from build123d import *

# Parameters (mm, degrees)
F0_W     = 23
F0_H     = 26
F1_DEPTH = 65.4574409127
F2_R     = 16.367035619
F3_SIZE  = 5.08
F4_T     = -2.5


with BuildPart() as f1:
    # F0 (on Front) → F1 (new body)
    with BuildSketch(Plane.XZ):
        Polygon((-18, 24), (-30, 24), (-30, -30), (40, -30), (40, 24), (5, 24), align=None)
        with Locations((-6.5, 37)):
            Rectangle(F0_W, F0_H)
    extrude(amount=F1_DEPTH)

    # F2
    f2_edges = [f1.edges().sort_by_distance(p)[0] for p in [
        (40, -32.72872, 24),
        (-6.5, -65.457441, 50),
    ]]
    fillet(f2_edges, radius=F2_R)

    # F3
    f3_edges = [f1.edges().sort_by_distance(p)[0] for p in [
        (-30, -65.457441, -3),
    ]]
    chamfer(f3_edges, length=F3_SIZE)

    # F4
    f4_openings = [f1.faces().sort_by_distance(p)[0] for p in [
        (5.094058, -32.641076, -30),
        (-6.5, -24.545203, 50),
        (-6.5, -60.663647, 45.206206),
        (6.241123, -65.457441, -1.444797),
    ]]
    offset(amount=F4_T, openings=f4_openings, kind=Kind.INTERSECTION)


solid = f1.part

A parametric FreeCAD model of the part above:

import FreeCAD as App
import Part
import Sketcher

V = App.Vector
Q = App.Units.Quantity


def edges_at(feature, points):
    """Names of the edges that pass closest to the given points."""
    edges = feature.Shape.Edges
    near = lambda p: min(range(len(edges)), key=lambda i: edges[i].distToShape(Part.Vertex(*p))[0])
    return sorted({f"Edge{near(p) + 1}" for p in points})


def faces_at(feature, points):
    """Names of the faces that lie closest to the given points."""
    faces = feature.Shape.Faces
    near = lambda p: min(range(len(faces)), key=lambda i: faces[i].distToShape(Part.Vertex(*p))[0])
    return sorted({f"Face{near(p) + 1}" for p in points})

doc = App.newDocument("Part")
body = doc.addObject("PartDesign::Body", "Body")

# Sketch on XZ plane
sketch1 = body.newObject("Sketcher::SketchObject", "Sketch")
sketch1.AttachmentSupport = (doc.getObject("XZ_Plane"), [""])
sketch1.MapMode = "FlatFace"
sketch1.addGeometry(Part.LineSegment(V(-30, 24, 0), V(-30, -30, 0)), False)
sketch1.addGeometry(Part.LineSegment(V(-30, -30, 0), V(40, -30, 0)), False)
sketch1.addGeometry(Part.LineSegment(V(40, -30, 0), V(40, 24, 0)), False)
sketch1.addGeometry(Part.LineSegment(V(40, 24, 0), V(5, 24, 0)), False)
sketch1.addGeometry(Part.LineSegment(V(5, 24, 0), V(5, 50, 0)), False)
sketch1.addGeometry(Part.LineSegment(V(5, 50, 0), V(-18, 50, 0)), False)
sketch1.addGeometry(Part.LineSegment(V(-18, 50, 0), V(-18, 24, 0)), False)
sketch1.addGeometry(Part.LineSegment(V(-18, 24, 0), V(-30, 24, 0)), False)
sketch1.addConstraint(Sketcher.Constraint("Coincident", 0, 2, 1, 1))
sketch1.addConstraint(Sketcher.Constraint("Coincident", 1, 2, 2, 1))
sketch1.addConstraint(Sketcher.Constraint("Coincident", 2, 2, 3, 1))
sketch1.addConstraint(Sketcher.Constraint("Coincident", 3, 2, 4, 1))
sketch1.addConstraint(Sketcher.Constraint("Coincident", 4, 2, 5, 1))
sketch1.addConstraint(Sketcher.Constraint("Coincident", 5, 2, 6, 1))
sketch1.addConstraint(Sketcher.Constraint("Coincident", 6, 2, 7, 1))
sketch1.addConstraint(Sketcher.Constraint("Coincident", 7, 2, 0, 1))
sketch1.addConstraint(Sketcher.Constraint("Vertical", 0))
sketch1.addConstraint(Sketcher.Constraint("Horizontal", 1))
sketch1.addConstraint(Sketcher.Constraint("Vertical", 2))
sketch1.addConstraint(Sketcher.Constraint("Horizontal", 3))
sketch1.addConstraint(Sketcher.Constraint("Vertical", 4))
sketch1.addConstraint(Sketcher.Constraint("Horizontal", 5))
sketch1.addConstraint(Sketcher.Constraint("Vertical", 6))
sketch1.addConstraint(Sketcher.Constraint("Horizontal", 7))
sketch1.addConstraint(Sketcher.Constraint("Horizontal", 3, 2, 6, 2))
sketch1.addConstraint(Sketcher.Constraint("DistanceX", 1, 1, 1, 2, Q("70 mm")))
sketch1.addConstraint(Sketcher.Constraint("DistanceX", 3, 2, 3, 1, Q("35 mm")))
sketch1.addConstraint(Sketcher.Constraint("DistanceX", 5, 2, 5, 1, Q("23 mm")))
sketch1.addConstraint(Sketcher.Constraint("DistanceY", 0, 2, 0, 1, Q("54 mm")))
sketch1.addConstraint(Sketcher.Constraint("DistanceY", 4, 1, 4, 2, Q("26 mm")))
sketch1.addConstraint(Sketcher.Constraint("DistanceX", 0, 2, -1, 1, Q("30 mm")))
sketch1.addConstraint(Sketcher.Constraint("DistanceY", 0, 2, -1, 1, Q("30 mm")))
pad1 = body.newObject("PartDesign::Pad", "Pad")
pad1.Profile = sketch1
pad1.Length = 65.457441
doc.recompute()

fillet = body.newObject("PartDesign::Fillet", "Fillet")
fillet.Base = (pad1, edges_at(pad1, [(40, -32.729, 24), (-6.5, -65.457, 50)]))
fillet.Radius = 16.367036
doc.recompute()

chamfer = body.newObject("PartDesign::Chamfer", "Chamfer")
chamfer.Base = (fillet, edges_at(fillet, [(-30, -65.457, -3)]))
chamfer.Size = 5.08
doc.recompute()

thickness = body.newObject("PartDesign::Thickness", "Thickness")
thickness.Base = (chamfer, faces_at(chamfer, [
    (5, -32.729, -30),
    (-6.5, -24.545, 50),
    (-6.5, -60.664, 45.206),
    (7.54, -65.457, 1.816),
]))
thickness.Value = 2.5
thickness.Reversed = True
thickness.Join = "Intersection"

doc.recompute()
